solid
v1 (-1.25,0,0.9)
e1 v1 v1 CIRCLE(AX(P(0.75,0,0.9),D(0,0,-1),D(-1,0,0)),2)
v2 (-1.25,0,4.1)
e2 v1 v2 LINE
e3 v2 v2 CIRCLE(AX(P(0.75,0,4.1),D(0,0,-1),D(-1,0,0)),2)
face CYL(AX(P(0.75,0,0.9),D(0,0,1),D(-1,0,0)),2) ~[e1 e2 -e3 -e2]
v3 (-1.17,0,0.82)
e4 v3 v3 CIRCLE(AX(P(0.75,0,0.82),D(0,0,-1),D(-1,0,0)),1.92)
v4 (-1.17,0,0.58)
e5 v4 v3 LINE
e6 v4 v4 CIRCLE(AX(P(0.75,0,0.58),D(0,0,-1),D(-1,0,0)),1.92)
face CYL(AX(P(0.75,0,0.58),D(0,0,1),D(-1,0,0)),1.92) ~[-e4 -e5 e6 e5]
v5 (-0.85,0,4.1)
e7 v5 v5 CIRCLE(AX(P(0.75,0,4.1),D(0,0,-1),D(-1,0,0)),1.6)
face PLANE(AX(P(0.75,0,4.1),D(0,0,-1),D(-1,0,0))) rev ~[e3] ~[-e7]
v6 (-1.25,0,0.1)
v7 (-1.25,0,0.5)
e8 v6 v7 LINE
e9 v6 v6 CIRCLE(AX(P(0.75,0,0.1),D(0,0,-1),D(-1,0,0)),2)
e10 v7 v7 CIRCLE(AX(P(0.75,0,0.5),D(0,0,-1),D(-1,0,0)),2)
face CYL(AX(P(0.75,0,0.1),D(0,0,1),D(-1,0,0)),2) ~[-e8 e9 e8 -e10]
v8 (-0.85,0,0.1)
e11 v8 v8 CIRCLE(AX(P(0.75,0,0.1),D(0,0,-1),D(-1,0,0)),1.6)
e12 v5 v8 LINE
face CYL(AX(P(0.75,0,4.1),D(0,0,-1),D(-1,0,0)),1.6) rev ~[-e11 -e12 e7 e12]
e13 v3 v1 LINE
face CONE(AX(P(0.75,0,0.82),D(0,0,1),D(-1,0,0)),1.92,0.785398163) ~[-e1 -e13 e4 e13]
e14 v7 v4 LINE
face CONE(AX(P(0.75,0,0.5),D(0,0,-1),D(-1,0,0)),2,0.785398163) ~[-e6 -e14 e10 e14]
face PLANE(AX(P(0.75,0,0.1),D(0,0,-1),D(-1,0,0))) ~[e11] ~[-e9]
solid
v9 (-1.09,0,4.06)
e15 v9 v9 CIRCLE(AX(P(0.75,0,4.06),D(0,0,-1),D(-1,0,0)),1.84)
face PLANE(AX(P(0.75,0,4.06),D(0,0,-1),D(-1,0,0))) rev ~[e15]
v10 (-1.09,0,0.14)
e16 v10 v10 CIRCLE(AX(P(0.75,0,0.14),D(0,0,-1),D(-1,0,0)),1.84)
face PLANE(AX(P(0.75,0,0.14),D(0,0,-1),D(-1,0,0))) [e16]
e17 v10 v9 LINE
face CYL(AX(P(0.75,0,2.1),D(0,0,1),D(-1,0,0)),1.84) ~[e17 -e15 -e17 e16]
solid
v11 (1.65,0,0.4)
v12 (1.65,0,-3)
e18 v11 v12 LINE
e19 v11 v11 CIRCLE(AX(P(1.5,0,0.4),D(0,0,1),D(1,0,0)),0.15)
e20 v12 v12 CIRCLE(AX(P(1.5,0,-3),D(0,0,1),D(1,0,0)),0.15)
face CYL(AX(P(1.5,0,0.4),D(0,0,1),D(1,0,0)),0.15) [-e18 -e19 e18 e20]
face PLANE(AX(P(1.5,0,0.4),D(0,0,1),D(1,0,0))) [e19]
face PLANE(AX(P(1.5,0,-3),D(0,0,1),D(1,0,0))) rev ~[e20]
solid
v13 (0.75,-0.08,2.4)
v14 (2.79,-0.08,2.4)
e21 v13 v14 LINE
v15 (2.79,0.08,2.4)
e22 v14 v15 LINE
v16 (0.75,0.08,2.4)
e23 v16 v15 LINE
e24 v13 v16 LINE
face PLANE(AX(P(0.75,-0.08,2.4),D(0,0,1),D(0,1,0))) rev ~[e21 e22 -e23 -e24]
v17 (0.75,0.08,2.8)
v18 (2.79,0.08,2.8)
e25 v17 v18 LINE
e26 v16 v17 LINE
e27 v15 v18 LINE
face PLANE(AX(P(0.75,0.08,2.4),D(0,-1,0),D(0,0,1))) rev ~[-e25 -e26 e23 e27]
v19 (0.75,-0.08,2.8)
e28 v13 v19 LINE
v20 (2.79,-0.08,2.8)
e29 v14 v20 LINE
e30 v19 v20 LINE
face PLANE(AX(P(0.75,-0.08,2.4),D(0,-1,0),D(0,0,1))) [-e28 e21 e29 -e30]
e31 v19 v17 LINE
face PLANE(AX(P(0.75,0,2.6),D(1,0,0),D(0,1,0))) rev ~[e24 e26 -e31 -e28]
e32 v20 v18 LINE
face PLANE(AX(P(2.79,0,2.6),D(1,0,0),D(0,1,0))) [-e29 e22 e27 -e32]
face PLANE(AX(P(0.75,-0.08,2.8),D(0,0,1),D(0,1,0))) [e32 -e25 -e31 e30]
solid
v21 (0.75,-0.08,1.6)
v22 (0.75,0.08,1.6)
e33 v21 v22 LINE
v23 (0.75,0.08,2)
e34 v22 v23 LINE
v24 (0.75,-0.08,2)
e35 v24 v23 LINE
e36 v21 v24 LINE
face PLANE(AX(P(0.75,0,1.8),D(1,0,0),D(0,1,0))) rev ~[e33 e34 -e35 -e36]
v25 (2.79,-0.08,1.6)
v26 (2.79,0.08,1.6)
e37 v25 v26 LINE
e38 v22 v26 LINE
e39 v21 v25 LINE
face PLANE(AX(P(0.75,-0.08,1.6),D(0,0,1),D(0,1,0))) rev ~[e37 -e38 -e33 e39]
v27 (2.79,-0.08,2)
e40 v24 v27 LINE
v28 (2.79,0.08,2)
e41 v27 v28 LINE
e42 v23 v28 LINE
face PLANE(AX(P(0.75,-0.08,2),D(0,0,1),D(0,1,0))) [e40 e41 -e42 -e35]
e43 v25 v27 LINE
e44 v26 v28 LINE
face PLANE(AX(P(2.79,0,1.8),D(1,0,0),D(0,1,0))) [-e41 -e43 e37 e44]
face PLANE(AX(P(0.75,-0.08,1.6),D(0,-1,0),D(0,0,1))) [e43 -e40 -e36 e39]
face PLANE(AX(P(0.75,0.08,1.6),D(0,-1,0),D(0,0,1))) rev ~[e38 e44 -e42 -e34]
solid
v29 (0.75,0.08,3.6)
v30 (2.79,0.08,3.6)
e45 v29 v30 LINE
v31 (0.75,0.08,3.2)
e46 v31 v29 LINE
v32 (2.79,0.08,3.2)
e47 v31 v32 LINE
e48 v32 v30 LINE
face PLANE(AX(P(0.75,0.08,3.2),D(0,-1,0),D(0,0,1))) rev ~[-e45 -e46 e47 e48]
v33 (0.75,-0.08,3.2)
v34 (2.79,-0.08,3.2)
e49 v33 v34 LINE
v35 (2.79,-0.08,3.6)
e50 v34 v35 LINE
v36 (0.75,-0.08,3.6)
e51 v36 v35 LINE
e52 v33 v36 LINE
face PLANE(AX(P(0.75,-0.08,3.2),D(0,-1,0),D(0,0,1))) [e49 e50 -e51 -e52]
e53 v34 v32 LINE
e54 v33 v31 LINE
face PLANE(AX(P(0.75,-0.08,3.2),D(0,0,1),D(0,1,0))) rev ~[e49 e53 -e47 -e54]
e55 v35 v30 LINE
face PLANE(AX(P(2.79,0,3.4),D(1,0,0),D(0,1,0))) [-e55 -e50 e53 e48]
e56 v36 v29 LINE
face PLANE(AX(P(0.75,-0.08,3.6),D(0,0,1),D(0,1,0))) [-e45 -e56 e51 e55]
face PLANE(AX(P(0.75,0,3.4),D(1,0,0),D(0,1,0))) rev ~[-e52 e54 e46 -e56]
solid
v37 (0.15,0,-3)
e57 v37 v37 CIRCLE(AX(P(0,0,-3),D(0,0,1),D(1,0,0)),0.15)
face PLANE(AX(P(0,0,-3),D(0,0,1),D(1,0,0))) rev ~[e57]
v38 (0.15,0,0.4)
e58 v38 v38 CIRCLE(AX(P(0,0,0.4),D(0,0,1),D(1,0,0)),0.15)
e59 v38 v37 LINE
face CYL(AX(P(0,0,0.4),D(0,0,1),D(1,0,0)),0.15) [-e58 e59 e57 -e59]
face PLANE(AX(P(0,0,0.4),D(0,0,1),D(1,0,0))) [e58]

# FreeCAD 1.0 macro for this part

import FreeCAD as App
import Part
import Sketcher
from FreeCAD import Vector

doc = App.newDocument("Part")
params = doc.addObject("Spreadsheet::Sheet", "Params")
for row, (alias, value) in enumerate([
    ("sketch1_height", "4 mm"),
    ("sketch1_width", "0.4 mm"),
    ("sketch1_height2", "3.2 mm"),
    ("sketch1_height3", "0.24 mm"),
    ("revolution_angle", "360 deg"),
    ("sketch2_width", "1.84 mm"),
    ("sketch2_height", "3.92 mm"),
    ("revolution2_angle", "360 deg"),
    ("sketch3_diameter", "0.3 mm"),
    ("pad1_length", "3.4 mm"),
    ("sketch4_height", "0.4 mm"),
    ("sketch4_width", "0.16 mm"),
    ("pad2_length", "2.04 mm"),
], start=1):
    params.set(f"A{row}", alias)
    params.set(f"B{row}", "=" + value)
    params.setAlias(f"B{row}", alias)

body = doc.addObject("PartDesign::Body", "Body")

# Sketch on XZ plane
sketch1 = body.newObject("Sketcher::SketchObject", "Sketch")
sketch1.AttachmentSupport = (doc.getObject("XZ_Plane"), [""])
sketch1.MapMode = "FlatFace"
sketch1.addGeometry([
    Part.LineSegment(Vector(-1.25, 0.5, 0), Vector(-1.25, 0.1, 0)),  # 0
    Part.LineSegment(Vector(-1.25, 0.1, 0), Vector(-0.85, 0.1, 0)),  # 1
    Part.LineSegment(Vector(-0.85, 0.1, 0), Vector(-0.85, 4.1, 0)),  # 2
    Part.LineSegment(Vector(-0.85, 4.1, 0), Vector(-1.25, 4.1, 0)),  # 3
    Part.LineSegment(Vector(-1.25, 4.1, 0), Vector(-1.25, 0.9, 0)),  # 4
    Part.LineSegment(Vector(-1.25, 0.9, 0), Vector(-1.17, 0.82, 0)),  # 5
    Part.LineSegment(Vector(-1.17, 0.82, 0), Vector(-1.17, 0.58, 0)),  # 6
    Part.LineSegment(Vector(-1.17, 0.58, 0), Vector(-1.25, 0.5, 0)),  # 7
], False)
sketch1.addGeometry(Part.LineSegment(Vector(0.75, 4.1, 0), Vector(0.75, 0.1, 0)), True)  # axis
sketch1.addConstraint([
    Sketcher.Constraint("Coincident", 0, 2, 1, 1),
    Sketcher.Constraint("Coincident", 1, 2, 2, 1),
    Sketcher.Constraint("Coincident", 2, 2, 3, 1),
    Sketcher.Constraint("Coincident", 3, 2, 4, 1),
    Sketcher.Constraint("Coincident", 4, 2, 5, 1),
    Sketcher.Constraint("Coincident", 5, 2, 6, 1),
    Sketcher.Constraint("Coincident", 6, 2, 7, 1),
    Sketcher.Constraint("Coincident", 7, 2, 0, 1),
    Sketcher.Constraint("Vertical", 0),
    Sketcher.Constraint("Horizontal", 1),
    Sketcher.Constraint("Vertical", 2),
    Sketcher.Constraint("Horizontal", 3),
    Sketcher.Constraint("Vertical", 4),
    Sketcher.Constraint("Vertical", 6),
    Sketcher.Constraint("Vertical", 8),
    Sketcher.Constraint("Perpendicular", 5, 7),
    Sketcher.Constraint("Horizontal", 3, 2, 8, 1),
    Sketcher.Constraint("Horizontal", 1, 2, 8, 2),
    Sketcher.Constraint("Vertical", 0, 2, 3, 2),
    Sketcher.Constraint("Equal", 3, 0),
    Sketcher.Constraint("Equal", 5, 7),
    Sketcher.Constraint("DistanceY", 2, 1, 2, 2, 4.0),
    Sketcher.Constraint("DistanceX", 1, 1, 1, 2, 0.4),
    Sketcher.Constraint("DistanceY", 4, 2, 4, 1, 3.2),
    Sketcher.Constraint("DistanceX", 3, 2, 8, 1, 2.0),
    Sketcher.Constraint("DistanceY", 6, 2, 6, 1, 0.24),
    Sketcher.Constraint("DistanceY", -1, 1, 0, 2, 0.1),
    Sketcher.Constraint("DistanceX", 0, 2, -1, 1, 1.25),
])
sketch1.setExpression("Constraints[21]", "Params.sketch1_height")
sketch1.setExpression("Constraints[22]", "Params.sketch1_width")
sketch1.setExpression("Constraints[23]", "Params.sketch1_height2")
sketch1.setExpression("Constraints[25]", "Params.sketch1_height3")
revolution = body.newObject("PartDesign::Revolution", "Revolution")
revolution.Profile = sketch1
revolution.ReferenceAxis = (sketch1, ["Axis0"])
revolution.setExpression("Angle", "Params.revolution_angle")
body2 = doc.addObject("PartDesign::Body", "Body001")

# Sketch on XZ plane
sketch2 = body2.newObject("Sketcher::SketchObject", "Sketch001")
sketch2.AttachmentSupport = (doc.getObject("XZ_Plane001"), [""])
sketch2.MapMode = "FlatFace"
sketch2.addGeometry([
    Part.LineSegment(Vector(-1.09, 4.06, 0), Vector(-1.09, 0.14, 0)),
    Part.LineSegment(Vector(-1.09, 0.14, 0), Vector(0.75, 0.14, 0)),
    Part.LineSegment(Vector(0.75, 0.14, 0), Vector(0.75, 4.06, 0)),
    Part.LineSegment(Vector(0.75, 4.06, 0), Vector(-1.09, 4.06, 0)),
], False)
sketch2.addGeometry(Part.LineSegment(Vector(0.75, 4.06, 0), Vector(0.75, 0.14, 0)), True)  # axis
sketch2.addConstraint([
    Sketcher.Constraint("Coincident", 0, 2, 1, 1),
    Sketcher.Constraint("Coincident", 1, 2, 2, 1),
    Sketcher.Constraint("Coincident", 2, 2, 3, 1),
    Sketcher.Constraint("Coincident", 3, 2, 0, 1),
    Sketcher.Constraint("Vertical", 0),
    Sketcher.Constraint("Horizontal", 1),
    Sketcher.Constraint("Vertical", 2),
    Sketcher.Constraint("Horizontal", 3),
    Sketcher.Constraint("Vertical", 4),
    Sketcher.Constraint("Coincident", 4, 1, 2, 2),
    Sketcher.Constraint("Horizontal", 0, 2, 4, 2),
    Sketcher.Constraint("DistanceX", 1, 1, 1, 2, 1.84),
    Sketcher.Constraint("DistanceY", 0, 2, 0, 1, 3.92),
    Sketcher.Constraint("DistanceX", 0, 2, -1, 1, 1.09),
    Sketcher.Constraint("DistanceY", -1, 1, 0, 2, 0.14),
])
sketch2.setExpression("Constraints[11]", "Params.sketch2_width")
sketch2.setExpression("Constraints[12]", "Params.sketch2_height")
revolution2 = body2.newObject("PartDesign::Revolution", "Revolution001")
revolution2.Profile = sketch2
revolution2.ReferenceAxis = (sketch2, ["Axis0"])
revolution2.setExpression("Angle", "Params.revolution2_angle")
body3 = doc.addObject("PartDesign::Body", "Body002")
body3.AllowCompound = True

# Sketch on XY plane
sketch3 = body3.newObject("Sketcher::SketchObject", "Sketch002")
sketch3.AttachmentSupport = (doc.getObject("XY_Plane002"), [""])
sketch3.MapMode = "FlatFace"
sketch3.AttachmentOffset = App.Placement(Vector(0, 0, 0.4), App.Rotation())
sketch3.addGeometry([
    Part.Circle(Vector(0, 0, 0), Vector(0, 0, 1), 0.15),
    Part.Circle(Vector(1.5, 0, 0), Vector(0, 0, 1), 0.15),
], False)
sketch3.addConstraint([
    Sketcher.Constraint("Coincident", 0, 3, -1, 1),
    Sketcher.Constraint("Equal", 0, 1),
    Sketcher.Constraint("PointOnObject", 1, 3, -1),
    Sketcher.Constraint("Diameter", 0, 0.3),
    Sketcher.Constraint("DistanceX", -1, 1, 1, 3, 1.5),
])
sketch3.setExpression("Constraints[3]", "Params.sketch3_diameter")
pad1 = body3.newObject("PartDesign::Pad", "Pad")
pad1.Profile = sketch3
pad1.setExpression("Length", "Params.pad1_length")
pad1.Reversed = True
body4 = doc.addObject("PartDesign::Body", "Body003")
body4.AllowCompound = True

# Sketch on YZ plane
sketch4 = body4.newObject("Sketcher::SketchObject", "Sketch003")
sketch4.AttachmentSupport = (doc.getObject("YZ_Plane003"), [""])
sketch4.MapMode = "FlatFace"
sketch4.AttachmentOffset = App.Placement(Vector(0, 0, 0.75), App.Rotation())
sketch4.addGeometry([
    Part.LineSegment(Vector(-0.08, 2, 0), Vector(-0.08, 1.6, 0)),  # 0
    Part.LineSegment(Vector(-0.08, 1.6, 0), Vector(0.08, 1.6, 0)),  # 1
    Part.LineSegment(Vector(0.08, 1.6, 0), Vector(0.08, 2, 0)),  # 2
    Part.LineSegment(Vector(0.08, 2, 0), Vector(-0.08, 2, 0)),  # 3
    Part.LineSegment(Vector(-0.08, 2.8, 0), Vector(-0.08, 2.4, 0)),  # 4
    Part.LineSegment(Vector(-0.08, 2.4, 0), Vector(0.08, 2.4, 0)),  # 5
    Part.LineSegment(Vector(0.08, 2.4, 0), Vector(0.08, 2.8, 0)),  # 6
    Part.LineSegment(Vector(0.08, 2.8, 0), Vector(-0.08, 2.8, 0)),  # 7
    Part.LineSegment(Vector(-0.08, 3.6, 0), Vector(-0.08, 3.2, 0)),  # 8
    Part.LineSegment(Vector(-0.08, 3.2, 0), Vector(0.08, 3.2, 0)),  # 9
    Part.LineSegment(Vector(0.08, 3.2, 0), Vector(0.08, 3.6, 0)),  # 10
    Part.LineSegment(Vector(0.08, 3.6, 0), Vector(-0.08, 3.6, 0)),  # 11
], False)
sketch4.addConstraint([
    Sketcher.Constraint("Coincident", 0, 2, 1, 1),
    Sketcher.Constraint("Coincident", 1, 2, 2, 1),
    Sketcher.Constraint("Coincident", 2, 2, 3, 1),
    Sketcher.Constraint("Coincident", 3, 2, 0, 1),
    Sketcher.Constraint("Coincident", 4, 2, 5, 1),
    Sketcher.Constraint("Coincident", 5, 2, 6, 1),
    Sketcher.Constraint("Coincident", 6, 2, 7, 1),
    Sketcher.Constraint("Coincident", 7, 2, 4, 1),
    Sketcher.Constraint("Coincident", 8, 2, 9, 1),
    Sketcher.Constraint("Coincident", 9, 2, 10, 1),
    Sketcher.Constraint("Coincident", 10, 2, 11, 1),
    Sketcher.Constraint("Coincident", 11, 2, 8, 1),
    Sketcher.Constraint("Vertical", 0),
    Sketcher.Constraint("Horizontal", 1),
    Sketcher.Constraint("Vertical", 2),
    Sketcher.Constraint("Horizontal", 3),
    Sketcher.Constraint("Vertical", 4),
    Sketcher.Constraint("Horizontal", 5),
    Sketcher.Constraint("Vertical", 6),
    Sketcher.Constraint("Horizontal", 7),
    Sketcher.Constraint("Vertical", 8),
    Sketcher.Constraint("Horizontal", 9),
    Sketcher.Constraint("Vertical", 10),
    Sketcher.Constraint("Horizontal", 11),
    Sketcher.Constraint("Vertical", 3, 2, 4, 2),
    Sketcher.Constraint("Vertical", 2, 2, 5, 2),
    Sketcher.Constraint("Vertical", 7, 2, 8, 2),
    Sketcher.Constraint("Vertical", 6, 2, 9, 2),
    Sketcher.Constraint("Equal", 2, 4),
    Sketcher.Constraint("Equal", 6, 8),
    Sketcher.Constraint("DistanceY", 0, 2, 0, 1, 0.4),
    Sketcher.Constraint("DistanceY", -1, 1, 2, 2, 2.0),
    Sketcher.Constraint("DistanceX", 1, 1, 1, 2, 0.16),
    Sketcher.Constraint("DistanceY", -1, 1, 4, 2, 2.4),
    Sketcher.Constraint("DistanceY", -1, 1, 8, 2, 3.2),
    Sketcher.Constraint("DistanceX", 0, 2, -1, 1, 0.08),
])
sketch4.setExpression("Constraints[30]", "Params.sketch4_height")
sketch4.setExpression("Constraints[32]", "Params.sketch4_width")
pad2 = body4.newObject("PartDesign::Pad", "Pad001")
pad2.Profile = sketch4
pad2.setExpression("Length", "Params.pad2_length")

doc.recompute()
